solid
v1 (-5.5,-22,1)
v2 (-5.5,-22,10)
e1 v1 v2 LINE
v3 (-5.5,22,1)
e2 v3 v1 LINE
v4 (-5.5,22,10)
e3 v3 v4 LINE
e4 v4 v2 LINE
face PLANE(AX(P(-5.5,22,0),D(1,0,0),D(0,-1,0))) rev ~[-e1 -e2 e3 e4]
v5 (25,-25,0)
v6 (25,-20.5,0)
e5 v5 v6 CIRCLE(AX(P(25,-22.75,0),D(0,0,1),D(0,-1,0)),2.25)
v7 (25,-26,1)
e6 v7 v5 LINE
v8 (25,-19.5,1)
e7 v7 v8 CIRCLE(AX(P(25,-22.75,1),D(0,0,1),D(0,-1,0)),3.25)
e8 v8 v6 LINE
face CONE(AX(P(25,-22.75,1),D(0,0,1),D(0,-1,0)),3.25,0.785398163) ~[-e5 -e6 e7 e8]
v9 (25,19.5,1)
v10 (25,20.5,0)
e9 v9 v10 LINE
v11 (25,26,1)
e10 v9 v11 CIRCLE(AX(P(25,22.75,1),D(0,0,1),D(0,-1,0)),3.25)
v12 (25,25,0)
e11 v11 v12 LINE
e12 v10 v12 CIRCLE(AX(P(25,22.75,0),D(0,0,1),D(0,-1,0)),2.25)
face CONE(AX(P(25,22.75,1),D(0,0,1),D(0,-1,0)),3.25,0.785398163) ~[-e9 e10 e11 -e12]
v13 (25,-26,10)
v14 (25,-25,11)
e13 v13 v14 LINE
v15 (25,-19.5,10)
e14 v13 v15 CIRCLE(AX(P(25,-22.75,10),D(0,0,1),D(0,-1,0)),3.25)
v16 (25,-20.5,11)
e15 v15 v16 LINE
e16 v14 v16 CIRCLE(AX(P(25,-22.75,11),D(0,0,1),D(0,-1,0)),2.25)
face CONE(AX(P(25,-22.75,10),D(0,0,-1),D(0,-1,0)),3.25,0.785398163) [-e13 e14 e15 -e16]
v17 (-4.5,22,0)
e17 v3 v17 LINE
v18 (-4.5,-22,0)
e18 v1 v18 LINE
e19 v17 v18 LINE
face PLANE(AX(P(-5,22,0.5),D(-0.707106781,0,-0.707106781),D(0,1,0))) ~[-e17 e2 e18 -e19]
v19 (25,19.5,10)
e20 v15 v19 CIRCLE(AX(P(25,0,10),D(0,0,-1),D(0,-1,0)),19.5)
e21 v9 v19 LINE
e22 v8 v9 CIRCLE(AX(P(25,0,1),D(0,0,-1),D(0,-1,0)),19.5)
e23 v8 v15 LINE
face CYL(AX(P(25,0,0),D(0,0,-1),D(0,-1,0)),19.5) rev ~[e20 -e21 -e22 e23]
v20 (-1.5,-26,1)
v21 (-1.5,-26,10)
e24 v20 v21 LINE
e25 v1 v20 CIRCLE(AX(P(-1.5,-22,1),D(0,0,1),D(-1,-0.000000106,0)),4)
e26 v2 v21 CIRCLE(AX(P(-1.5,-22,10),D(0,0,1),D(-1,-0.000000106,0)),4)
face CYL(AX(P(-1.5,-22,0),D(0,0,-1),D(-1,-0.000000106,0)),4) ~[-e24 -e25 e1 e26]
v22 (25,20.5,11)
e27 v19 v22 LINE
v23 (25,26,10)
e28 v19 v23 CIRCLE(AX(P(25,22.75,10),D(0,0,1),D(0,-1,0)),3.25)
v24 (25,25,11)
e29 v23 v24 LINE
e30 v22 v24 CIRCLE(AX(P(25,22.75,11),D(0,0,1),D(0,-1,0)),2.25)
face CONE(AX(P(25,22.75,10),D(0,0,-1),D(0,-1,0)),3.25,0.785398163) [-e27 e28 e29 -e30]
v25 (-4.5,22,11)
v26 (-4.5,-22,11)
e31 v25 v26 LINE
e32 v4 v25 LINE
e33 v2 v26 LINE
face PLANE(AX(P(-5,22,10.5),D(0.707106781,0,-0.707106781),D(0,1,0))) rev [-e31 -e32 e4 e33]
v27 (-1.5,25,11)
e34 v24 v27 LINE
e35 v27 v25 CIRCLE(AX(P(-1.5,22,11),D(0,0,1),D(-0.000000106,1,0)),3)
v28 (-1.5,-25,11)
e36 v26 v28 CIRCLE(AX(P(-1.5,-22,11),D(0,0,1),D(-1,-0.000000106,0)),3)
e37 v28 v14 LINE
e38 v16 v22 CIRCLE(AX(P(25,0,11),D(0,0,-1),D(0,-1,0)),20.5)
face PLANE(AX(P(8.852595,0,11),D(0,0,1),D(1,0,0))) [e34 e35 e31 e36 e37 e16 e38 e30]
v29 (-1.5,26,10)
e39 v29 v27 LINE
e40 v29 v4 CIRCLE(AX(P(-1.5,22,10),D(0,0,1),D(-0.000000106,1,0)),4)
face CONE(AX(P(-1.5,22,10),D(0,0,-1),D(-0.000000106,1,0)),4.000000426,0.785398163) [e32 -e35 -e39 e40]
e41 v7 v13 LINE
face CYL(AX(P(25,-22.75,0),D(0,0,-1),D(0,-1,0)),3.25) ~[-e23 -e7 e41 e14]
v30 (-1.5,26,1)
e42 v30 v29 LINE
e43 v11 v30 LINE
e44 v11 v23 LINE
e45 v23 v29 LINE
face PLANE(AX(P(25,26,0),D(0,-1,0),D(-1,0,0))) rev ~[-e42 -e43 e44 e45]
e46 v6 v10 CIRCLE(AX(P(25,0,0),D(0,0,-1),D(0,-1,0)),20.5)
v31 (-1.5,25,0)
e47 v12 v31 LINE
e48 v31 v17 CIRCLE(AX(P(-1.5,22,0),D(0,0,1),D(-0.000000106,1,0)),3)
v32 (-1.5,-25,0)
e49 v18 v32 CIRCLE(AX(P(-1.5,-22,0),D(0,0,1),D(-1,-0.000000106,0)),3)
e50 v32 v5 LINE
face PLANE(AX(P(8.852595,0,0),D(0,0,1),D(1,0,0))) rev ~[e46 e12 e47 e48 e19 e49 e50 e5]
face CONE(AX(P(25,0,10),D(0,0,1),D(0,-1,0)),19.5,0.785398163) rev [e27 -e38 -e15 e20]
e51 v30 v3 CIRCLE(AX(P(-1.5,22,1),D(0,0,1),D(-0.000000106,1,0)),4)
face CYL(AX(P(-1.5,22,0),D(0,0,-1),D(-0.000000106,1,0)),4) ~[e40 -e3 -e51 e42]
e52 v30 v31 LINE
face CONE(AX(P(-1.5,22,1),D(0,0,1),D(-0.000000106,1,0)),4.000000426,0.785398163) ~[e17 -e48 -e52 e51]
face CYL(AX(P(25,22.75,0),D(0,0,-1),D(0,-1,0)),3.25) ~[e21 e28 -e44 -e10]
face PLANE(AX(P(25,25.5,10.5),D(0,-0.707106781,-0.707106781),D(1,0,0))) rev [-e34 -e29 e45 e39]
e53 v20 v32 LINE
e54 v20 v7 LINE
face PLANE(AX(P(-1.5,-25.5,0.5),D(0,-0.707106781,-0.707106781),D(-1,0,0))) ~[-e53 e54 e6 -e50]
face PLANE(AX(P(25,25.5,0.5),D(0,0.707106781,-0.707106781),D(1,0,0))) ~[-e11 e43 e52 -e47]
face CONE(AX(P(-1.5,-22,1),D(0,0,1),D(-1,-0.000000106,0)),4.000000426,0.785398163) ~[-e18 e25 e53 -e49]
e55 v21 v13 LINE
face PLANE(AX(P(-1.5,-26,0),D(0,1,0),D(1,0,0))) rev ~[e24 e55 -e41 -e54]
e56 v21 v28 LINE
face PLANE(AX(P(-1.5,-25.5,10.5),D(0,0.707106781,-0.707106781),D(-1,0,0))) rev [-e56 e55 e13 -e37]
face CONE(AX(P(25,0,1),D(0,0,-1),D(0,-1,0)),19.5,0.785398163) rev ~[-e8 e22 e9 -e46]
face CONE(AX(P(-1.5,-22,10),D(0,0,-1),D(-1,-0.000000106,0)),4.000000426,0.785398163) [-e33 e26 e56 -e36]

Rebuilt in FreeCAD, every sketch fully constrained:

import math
import FreeCAD as App
import Part
import Sketcher
from FreeCAD import Vector


def edges_at(feature, points):
    """Names of the edges that pass closest to the given points."""
    edges = feature.Shape.Edges
    near = lambda p: min(range(len(edges)), key=lambda i: edges[i].distToShape(Part.Vertex(*p))[0])
    return sorted({f"Edge{near(p) + 1}" for p in points})

doc = App.newDocument("Part")
body = doc.addObject("PartDesign::Body", "Body")

sketch1 = doc.addObject("Sketcher::SketchObject", "Sketch")
body.addObject(sketch1)
sketch1.AttachmentSupport = (doc.XY_Plane, [""])
sketch1.MapMode = "FlatFace"
sketch1.addGeometry(Part.ArcOfCircle(Part.Circle(Vector(25, 0, 0), Vector(0, 0, 1), 19.5), math.radians(90), math.radians(270)), False)
sketch1.addGeometry(Part.ArcOfCircle(Part.Circle(Vector(25, 22.75, 0), Vector(0, 0, 1), 3.25), math.radians(-90), math.radians(90)), False)
sketch1.addGeometry(Part.LineSegment(Vector(25, 26, 0), Vector(-1.5, 26, 0)), False)
sketch1.addGeometry(Part.ArcOfCircle(Part.Circle(Vector(-1.5, 22, 0), Vector(0, 0, 1), 4), math.radians(90.000006), math.radians(179.999994)), False)
sketch1.addGeometry(Part.LineSegment(Vector(-5.5, 22, 0), Vector(-5.5, -22, 0)), False)
sketch1.addGeometry(Part.ArcOfCircle(Part.Circle(Vector(-1.5, -22, 0), Vector(0, 0, 1), 4), math.radians(-179.999994), math.radians(-90.000006)), False)
sketch1.addGeometry(Part.LineSegment(Vector(-1.5, -26, 0), Vector(25, -26, 0)), False)
sketch1.addGeometry(Part.ArcOfCircle(Part.Circle(Vector(25, -22.75, 0), Vector(0, 0, 1), 3.25), math.radians(-90), math.radians(90)), False)
sketch1.addConstraint(Sketcher.Constraint("Tangent", 0, 1, 1, 1))
sketch1.addConstraint(Sketcher.Constraint("Tangent", 1, 2, 2, 1))
sketch1.addConstraint(Sketcher.Constraint("Tangent", 2, 2, 3, 1))
sketch1.addConstraint(Sketcher.Constraint("Tangent", 3, 2, 4, 1))
sketch1.addConstraint(Sketcher.Constraint("Tangent", 4, 2, 5, 1))
sketch1.addConstraint(Sketcher.Constraint("Tangent", 5, 2, 6, 1))
sketch1.addConstraint(Sketcher.Constraint("Tangent", 6, 2, 7, 1))
sketch1.addConstraint(Sketcher.Constraint("Tangent", 7, 2, 0, 2))
sketch1.addConstraint(Sketcher.Constraint("Horizontal", 2))
sketch1.addConstraint(Sketcher.Constraint("Vertical", 4))
sketch1.addConstraint(Sketcher.Constraint("Horizontal", 6))
sketch1.addConstraint(Sketcher.Constraint("Equal", 3, 5))
sketch1.addConstraint(Sketcher.Constraint("Equal", 1, 7))
sketch1.addConstraint(Sketcher.Constraint("Symmetric", 1, 3, 7, 3, -1))
sketch1.addConstraint(Sketcher.Constraint("Vertical", 0, 3, 1, 3))
sketch1.addConstraint(Sketcher.Constraint("Radius", 3, 4.0))
sketch1.addConstraint(Sketcher.Constraint("Radius", 0, 19.5))
sketch1.addConstraint(Sketcher.Constraint("DistanceY", 4, 2, 4, 1, 44.0))
sketch1.addConstraint(Sketcher.Constraint("DistanceX", 2, 2, 2, 1, 26.5))
sketch1.addConstraint(Sketcher.Constraint("DistanceX", -1, 1, 0, 3, 25.0))
pad1 = doc.addObject("PartDesign::Pad", "Pad")
body.addObject(pad1)
pad1.Profile = sketch1
pad1.Length = 11
doc.recompute()

chamfer = doc.addObject("PartDesign::Chamfer", "Chamfer")
body.addObject(chamfer)
chamfer.Base = (pad1, edges_at(pad1, [(5.5, 0, 11), (5.5, 0, 0)]))
chamfer.Size = 1

doc.recompute()
